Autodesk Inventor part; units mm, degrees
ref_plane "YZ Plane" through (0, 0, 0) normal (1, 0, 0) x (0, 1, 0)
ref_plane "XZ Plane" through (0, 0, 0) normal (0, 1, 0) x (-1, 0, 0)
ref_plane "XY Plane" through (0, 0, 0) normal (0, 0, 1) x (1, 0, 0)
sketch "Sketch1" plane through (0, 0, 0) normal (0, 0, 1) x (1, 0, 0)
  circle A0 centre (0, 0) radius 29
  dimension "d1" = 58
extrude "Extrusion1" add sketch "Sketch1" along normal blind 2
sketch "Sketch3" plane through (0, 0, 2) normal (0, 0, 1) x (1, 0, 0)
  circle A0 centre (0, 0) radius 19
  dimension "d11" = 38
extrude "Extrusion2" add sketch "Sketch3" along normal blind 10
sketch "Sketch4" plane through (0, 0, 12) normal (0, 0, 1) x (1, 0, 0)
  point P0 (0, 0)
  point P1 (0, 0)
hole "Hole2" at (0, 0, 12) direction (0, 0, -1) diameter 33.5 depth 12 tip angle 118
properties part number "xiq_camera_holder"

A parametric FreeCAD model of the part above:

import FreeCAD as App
import Part
import Sketcher
from FreeCAD import Vector

doc = App.newDocument("Part")
body = doc.addObject("PartDesign::Body", "Body")

sketch1 = body.newObject("Sketcher::SketchObject", "Sketch")
sketch1.AttachmentSupport = (doc.getObject("XY_Plane"), [""])
sketch1.MapMode = "FlatFace"
sketch1.addGeometry(Part.Circle(Vector(0, 0, 0), Vector(0, 0, 1), 29), False)
sketch1.addConstraint([
    Sketcher.Constraint("Coincident", 0, 3, -1, 1),
    Sketcher.Constraint("Diameter", 0, 58.0),
])
pad1 = body.newObject("PartDesign::Pad", "Pad")
pad1.Profile = sketch1
pad1.Length = 2

sketch2 = body.newObject("Sketcher::SketchObject", "Sketch001")
sketch2.AttachmentSupport = (doc.getObject("XY_Plane"), [""])
sketch2.MapMode = "FlatFace"
sketch2.AttachmentOffset = App.Placement(Vector(0, 0, 2), App.Rotation())
sketch2.addGeometry(Part.Circle(Vector(0, 0, 0), Vector(0, 0, 1), 19), False)
sketch2.addConstraint([
    Sketcher.Constraint("Coincident", 0, 3, -1, 1),
    Sketcher.Constraint("Diameter", 0, 38.0),
])
pad2 = body.newObject("PartDesign::Pad", "Pad001")
pad2.Profile = sketch2
pad2.Length = 10

sketch3 = body.newObject("Sketcher::SketchObject", "Sketch002")
sketch3.AttachmentSupport = (doc.getObject("XY_Plane"), [""])
sketch3.MapMode = "FlatFace"
sketch3.AttachmentOffset = App.Placement(Vector(0, 0, 12), App.Rotation())
sketch3.addGeometry(Part.Circle(Vector(0, 0, 0), Vector(0, 0, 1), 17), False)
sketch3.addConstraint([
    Sketcher.Constraint("Coincident", 0, 3, -1, 1),
    Sketcher.Constraint("Diameter", 0, 33.5),
])
doc.recompute()
hole = body.newObject("PartDesign::Hole", "Hole")
hole.Profile = sketch3
hole.ThreadType = "None"
hole.Diameter = 33.5
hole.DepthType = "Dimension"
hole.Depth = 12
hole.DrillPoint = "Angled"
hole.DrillPointAngle = 118

doc.recompute()
